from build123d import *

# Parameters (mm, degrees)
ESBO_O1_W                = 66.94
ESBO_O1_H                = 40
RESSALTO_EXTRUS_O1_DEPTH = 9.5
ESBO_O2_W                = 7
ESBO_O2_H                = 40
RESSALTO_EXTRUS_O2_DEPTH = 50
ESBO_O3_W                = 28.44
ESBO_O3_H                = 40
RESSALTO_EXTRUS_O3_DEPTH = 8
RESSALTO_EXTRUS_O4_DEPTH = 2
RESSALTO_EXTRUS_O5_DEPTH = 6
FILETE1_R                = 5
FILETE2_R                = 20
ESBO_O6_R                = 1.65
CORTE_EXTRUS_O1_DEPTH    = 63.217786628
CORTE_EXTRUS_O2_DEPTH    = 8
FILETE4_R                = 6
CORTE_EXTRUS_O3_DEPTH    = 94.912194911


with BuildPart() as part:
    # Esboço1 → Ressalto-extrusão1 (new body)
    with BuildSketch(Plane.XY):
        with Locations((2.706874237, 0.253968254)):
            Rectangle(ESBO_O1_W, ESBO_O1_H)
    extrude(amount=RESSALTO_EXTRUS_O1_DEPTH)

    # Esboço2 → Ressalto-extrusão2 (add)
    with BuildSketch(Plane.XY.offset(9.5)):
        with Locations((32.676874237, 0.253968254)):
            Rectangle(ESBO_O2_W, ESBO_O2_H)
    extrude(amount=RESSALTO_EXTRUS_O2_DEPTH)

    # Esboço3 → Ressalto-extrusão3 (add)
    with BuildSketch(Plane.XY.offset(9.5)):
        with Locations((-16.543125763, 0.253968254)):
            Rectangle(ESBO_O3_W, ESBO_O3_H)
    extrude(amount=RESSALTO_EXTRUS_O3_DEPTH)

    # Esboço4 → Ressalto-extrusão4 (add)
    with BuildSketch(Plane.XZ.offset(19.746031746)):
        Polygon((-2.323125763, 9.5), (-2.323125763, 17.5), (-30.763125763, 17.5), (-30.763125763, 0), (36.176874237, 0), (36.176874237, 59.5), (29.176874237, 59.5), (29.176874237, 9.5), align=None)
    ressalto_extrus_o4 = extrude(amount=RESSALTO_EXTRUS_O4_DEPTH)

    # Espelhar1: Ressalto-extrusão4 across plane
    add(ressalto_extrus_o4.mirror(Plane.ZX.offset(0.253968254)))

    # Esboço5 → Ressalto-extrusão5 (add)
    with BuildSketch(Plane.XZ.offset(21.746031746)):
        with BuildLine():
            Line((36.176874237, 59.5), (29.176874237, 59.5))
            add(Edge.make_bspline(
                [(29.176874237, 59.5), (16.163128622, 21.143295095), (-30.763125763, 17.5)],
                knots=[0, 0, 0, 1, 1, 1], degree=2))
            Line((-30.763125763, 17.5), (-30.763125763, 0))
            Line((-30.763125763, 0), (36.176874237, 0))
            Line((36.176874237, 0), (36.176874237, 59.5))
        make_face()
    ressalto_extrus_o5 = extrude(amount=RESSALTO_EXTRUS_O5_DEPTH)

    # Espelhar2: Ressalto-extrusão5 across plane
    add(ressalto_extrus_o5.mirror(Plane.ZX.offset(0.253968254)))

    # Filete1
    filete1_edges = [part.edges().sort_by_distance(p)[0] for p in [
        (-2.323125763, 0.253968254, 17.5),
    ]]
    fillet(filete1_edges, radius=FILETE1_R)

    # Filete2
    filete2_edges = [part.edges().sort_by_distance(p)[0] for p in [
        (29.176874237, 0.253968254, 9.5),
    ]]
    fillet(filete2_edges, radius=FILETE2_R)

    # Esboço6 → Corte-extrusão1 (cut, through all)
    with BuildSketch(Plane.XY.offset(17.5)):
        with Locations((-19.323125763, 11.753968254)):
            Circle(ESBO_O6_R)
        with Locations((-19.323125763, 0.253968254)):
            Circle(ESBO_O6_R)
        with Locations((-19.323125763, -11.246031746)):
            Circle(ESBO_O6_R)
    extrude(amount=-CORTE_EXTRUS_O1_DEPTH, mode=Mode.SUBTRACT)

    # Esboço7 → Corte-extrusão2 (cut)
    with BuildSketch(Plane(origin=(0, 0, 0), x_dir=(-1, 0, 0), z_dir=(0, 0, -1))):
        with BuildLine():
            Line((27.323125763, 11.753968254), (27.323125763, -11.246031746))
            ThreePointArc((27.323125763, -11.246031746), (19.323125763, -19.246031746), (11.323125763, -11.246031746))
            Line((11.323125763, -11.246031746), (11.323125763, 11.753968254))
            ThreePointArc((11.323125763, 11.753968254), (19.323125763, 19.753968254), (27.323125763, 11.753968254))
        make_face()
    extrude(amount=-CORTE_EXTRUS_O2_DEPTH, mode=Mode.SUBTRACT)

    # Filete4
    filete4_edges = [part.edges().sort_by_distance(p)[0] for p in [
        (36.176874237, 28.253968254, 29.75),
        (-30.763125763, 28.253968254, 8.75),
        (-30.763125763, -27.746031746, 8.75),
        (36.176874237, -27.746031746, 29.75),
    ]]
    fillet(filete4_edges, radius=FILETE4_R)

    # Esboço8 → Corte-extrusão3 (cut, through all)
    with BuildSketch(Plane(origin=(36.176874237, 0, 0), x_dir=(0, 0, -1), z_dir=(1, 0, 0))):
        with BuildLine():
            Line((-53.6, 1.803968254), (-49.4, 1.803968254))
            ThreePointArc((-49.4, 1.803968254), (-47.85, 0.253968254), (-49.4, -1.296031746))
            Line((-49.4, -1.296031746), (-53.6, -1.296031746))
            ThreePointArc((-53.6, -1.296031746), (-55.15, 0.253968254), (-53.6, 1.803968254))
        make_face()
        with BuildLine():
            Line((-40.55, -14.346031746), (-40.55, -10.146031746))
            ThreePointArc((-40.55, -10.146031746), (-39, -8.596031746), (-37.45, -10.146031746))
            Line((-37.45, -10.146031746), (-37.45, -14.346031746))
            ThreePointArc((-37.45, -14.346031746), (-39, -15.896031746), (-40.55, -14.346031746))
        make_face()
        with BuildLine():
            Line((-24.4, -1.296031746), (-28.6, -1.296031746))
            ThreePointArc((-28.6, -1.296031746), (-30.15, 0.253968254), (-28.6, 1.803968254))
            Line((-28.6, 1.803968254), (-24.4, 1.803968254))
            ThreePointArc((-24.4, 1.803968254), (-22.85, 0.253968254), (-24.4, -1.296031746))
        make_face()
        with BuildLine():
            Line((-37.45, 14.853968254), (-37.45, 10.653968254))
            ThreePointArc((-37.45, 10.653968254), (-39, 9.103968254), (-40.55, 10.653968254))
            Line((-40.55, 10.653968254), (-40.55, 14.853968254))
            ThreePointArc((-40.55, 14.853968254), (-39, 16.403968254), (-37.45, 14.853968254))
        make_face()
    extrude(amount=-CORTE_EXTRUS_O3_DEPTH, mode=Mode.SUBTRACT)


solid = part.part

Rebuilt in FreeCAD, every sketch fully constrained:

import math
import FreeCAD as App
import Part
import Sketcher

V = App.Vector


def edges_at(feature, points):
    """Names of the edges that pass closest to the given points."""
    edges = feature.Shape.Edges
    near = lambda p: min(range(len(edges)), key=lambda i: edges[i].distToShape(Part.Vertex(*p))[0])
    return sorted({f"Edge{near(p) + 1}" for p in points})


def add_polygon(sketch, points):
    """Adds a closed chain of lines whose ends are joined by coincident constraints."""
    first, n = sketch.GeometryCount, len(points)
    for a, b in zip(points, points[1:] + points[:1]):
        sketch.addGeometry(Part.LineSegment(App.Vector(*a, 0), App.Vector(*b, 0)), False)
    for i in range(n):
        sketch.addConstraint(Sketcher.Constraint("Coincident", first + i, 2, first + (i + 1) % n, 1))

doc = App.newDocument("Part")
body = doc.addObject("PartDesign::Body", "Body")

# Sketch on XY plane
sketch1 = body.newObject("Sketcher::SketchObject", "Sketch")
sketch1.AttachmentSupport = (doc.getObject("XY_Plane"), [""])
sketch1.MapMode = "FlatFace"
add_polygon(sketch1, [(-31, 20), (-31, -20), (36, -20), (36, 20)])  # lines 0-3
sketch1.addConstraint(Sketcher.Constraint("Vertical", 0))
sketch1.addConstraint(Sketcher.Constraint("Horizontal", 1))
sketch1.addConstraint(Sketcher.Constraint("Vertical", 2))
sketch1.addConstraint(Sketcher.Constraint("Horizontal", 3))
sketch1.addConstraint(Sketcher.Constraint("DistanceY", 0, 2, 0, 1, 40.0))
sketch1.addConstraint(Sketcher.Constraint("DistanceX", 1, 1, 1, 2, 66.94))
sketch1.addConstraint(Sketcher.Constraint("DistanceY", 0, 2, -1, 1, 19.746032))
sketch1.addConstraint(Sketcher.Constraint("DistanceX", 0, 2, -1, 1, 30.763126))
pad1 = body.newObject("PartDesign::Pad", "Pad")
pad1.Profile = sketch1
pad1.Length = 9.5

# Sketch on XY plane
sketch2 = body.newObject("Sketcher::SketchObject", "Sketch001")
sketch2.AttachmentSupport = (doc.getObject("XY_Plane"), [""])
sketch2.MapMode = "FlatFace"
sketch2.AttachmentOffset = App.Placement(V(0, 0, 9.5), App.Rotation())
add_polygon(sketch2, [(29, 20), (29, -20), (36, -20), (36, 20)])  # lines 0-3
sketch2.addConstraint(Sketcher.Constraint("Vertical", 0))
sketch2.addConstraint(Sketcher.Constraint("Horizontal", 1))
sketch2.addConstraint(Sketcher.Constraint("Vertical", 2))
sketch2.addConstraint(Sketcher.Constraint("Horizontal", 3))
sketch2.addConstraint(Sketcher.Constraint("DistanceX", 1, 1, 1, 2, 7.0))
sketch2.addConstraint(Sketcher.Constraint("DistanceY", 0, 2, 0, 1, 40.0))
sketch2.addConstraint(Sketcher.Constraint("DistanceY", 0, 2, -1, 1, 19.746032))
sketch2.addConstraint(Sketcher.Constraint("DistanceX", -1, 1, 0, 2, 29.176874))
pad2 = body.newObject("PartDesign::Pad", "Pad001")
pad2.Profile = sketch2
pad2.Length = 50

# Sketch on XY plane
sketch3 = body.newObject("Sketcher::SketchObject", "Sketch002")
sketch3.AttachmentSupport = (doc.getObject("XY_Plane"), [""])
sketch3.MapMode = "FlatFace"
sketch3.AttachmentOffset = App.Placement(V(0, 0, 9.5), App.Rotation())
add_polygon(sketch3, [(-31, 20), (-31, -20), (-2, -20), (-2, 20)])  # lines 0-3
sketch3.addConstraint(Sketcher.Constraint("Vertical", 0))
sketch3.addConstraint(Sketcher.Constraint("Horizontal", 1))
sketch3.addConstraint(Sketcher.Constraint("Vertical", 2))
sketch3.addConstraint(Sketcher.Constraint("Horizontal", 3))
sketch3.addConstraint(Sketcher.Constraint("DistanceY", 0, 2, 0, 1, 40.0))
sketch3.addConstraint(Sketcher.Constraint("DistanceX", 1, 1, 1, 2, 28.44))
sketch3.addConstraint(Sketcher.Constraint("DistanceY", 0, 2, -1, 1, 19.746032))
sketch3.addConstraint(Sketcher.Constraint("DistanceX", 0, 2, -1, 1, 30.763126))
pad3 = body.newObject("PartDesign::Pad", "Pad002")
pad3.Profile = sketch3
pad3.Length = 8

# Sketch on XZ plane
sketch4 = body.newObject("Sketcher::SketchObject", "Sketch003")
sketch4.AttachmentSupport = (doc.getObject("XZ_Plane"), [""])
sketch4.MapMode = "FlatFace"
sketch4.AttachmentOffset = App.Placement(V(0, 0, 19.746032), App.Rotation())
add_polygon(sketch4, [(-2, 10), (-2, 18), (-31, 18), (-31, 0), (36, 0), (36, 60), (29, 60), (29, 10)])  # lines 0-7
sketch4.addConstraint(Sketcher.Constraint("Vertical", 0))
sketch4.addConstraint(Sketcher.Constraint("Horizontal", 1))
sketch4.addConstraint(Sketcher.Constraint("Vertical", 2))
sketch4.addConstraint(Sketcher.Constraint("Horizontal", 3))
sketch4.addConstraint(Sketcher.Constraint("Vertical", 4))
sketch4.addConstraint(Sketcher.Constraint("Horizontal", 5))
sketch4.addConstraint(Sketcher.Constraint("Vertical", 6))
sketch4.addConstraint(Sketcher.Constraint("Horizontal", 7))
sketch4.addConstraint(Sketcher.Constraint("PointOnObject", 2, 2, -1))
sketch4.addConstraint(Sketcher.Constraint("DistanceX", 5, 2, 5, 1, 7.0))
sketch4.addConstraint(Sketcher.Constraint("DistanceY", 0, 1, 0, 2, 8.0))
sketch4.addConstraint(Sketcher.Constraint("DistanceY", 6, 2, 6, 1, 50.0))
sketch4.addConstraint(Sketcher.Constraint("DistanceX", 7, 2, 7, 1, 31.5))
sketch4.addConstraint(Sketcher.Constraint("DistanceY", 2, 2, 2, 1, 17.5))
sketch4.addConstraint(Sketcher.Constraint("DistanceX", 1, 2, 1, 1, 28.44))
sketch4.addConstraint(Sketcher.Constraint("DistanceX", 0, 2, -1, 1, 2.323126))
pad4 = body.newObject("PartDesign::Pad", "Pad003")
pad4.Profile = sketch4
pad4.Length = 2
doc.recompute()

datumplane = body.newObject("PartDesign::Plane", "DatumPlane")
datumplane.AttachmentSupport = (doc.getObject("XZ_Plane"), [""])
datumplane.MapMode = "FlatFace"
datumplane.AttachmentOffset = App.Placement(V(0, 0, -0.253968), App.Rotation())
mirrored = body.newObject("PartDesign::Mirrored", "Mirrored")
mirrored.Originals = [pad4]
mirrored.MirrorPlane = (datumplane, [""])
body.Tip = mirrored

# Sketch on XZ plane
sketch5 = body.newObject("Sketcher::SketchObject", "Sketch004")
sketch5.AttachmentSupport = (doc.getObject("XZ_Plane"), [""])
sketch5.MapMode = "FlatFace"
sketch5.AttachmentOffset = App.Placement(V(0, 0, 21.746032), App.Rotation())
sketch5.addGeometry(Part.LineSegment(V(36.176874, 59.5, 0), V(29.176874, 59.5, 0)), False)
sketch5.addGeometry(Part.BSplineCurve([V(29.176874, 59.5, 0), V(16.163129, 21.143295, 0), V(-30.763126, 17.5, 0)], [3, 3], [0, 1], False, 2, [1, 1, 1], False), False)
sketch5.addGeometry(Part.LineSegment(V(-30.763126, 17.5, 0), V(-30.763126, 0, 0)), False)
sketch5.addGeometry(Part.LineSegment(V(-30.763126, 0, 0), V(36.176874, 0, 0)), False)
sketch5.addGeometry(Part.LineSegment(V(36.176874, 0, 0), V(36.176874, 59.5, 0)), False)
sketch5.addConstraint(Sketcher.Constraint("Block", 1))
sketch5.addConstraint(Sketcher.Constraint("Coincident", 0, 2, 1, 1))
sketch5.addConstraint(Sketcher.Constraint("Coincident", 1, 2, 2, 1))
sketch5.addConstraint(Sketcher.Constraint("Coincident", 2, 2, 3, 1))
sketch5.addConstraint(Sketcher.Constraint("Coincident", 3, 2, 4, 1))
sketch5.addConstraint(Sketcher.Constraint("Coincident", 4, 2, 0, 1))
sketch5.addConstraint(Sketcher.Constraint("Horizontal", 0))
sketch5.addConstraint(Sketcher.Constraint("Vertical", 2))
sketch5.addConstraint(Sketcher.Constraint("Horizontal", 3))
sketch5.addConstraint(Sketcher.Constraint("Vertical", 4))
sketch5.addConstraint(Sketcher.Constraint("PointOnObject", 2, 2, -1))
sketch5.addConstraint(Sketcher.Constraint("DistanceX", 0, 2, 0, 1, 7.0))
pad5 = body.newObject("PartDesign::Pad", "Pad004")
pad5.Profile = sketch5
pad5.Length = 6
doc.recompute()

datumplane2 = body.newObject("PartDesign::Plane", "DatumPlane001")
datumplane2.AttachmentSupport = (doc.getObject("XZ_Plane"), [""])
datumplane2.MapMode = "FlatFace"
datumplane2.AttachmentOffset = App.Placement(V(0, 0, -0.253968), App.Rotation())
mirrored2 = body.newObject("PartDesign::Mirrored", "Mirrored001")
mirrored2.Originals = [pad5]
mirrored2.MirrorPlane = (datumplane2, [""])
body.Tip = mirrored2
doc.recompute()

fillet = body.newObject("PartDesign::Fillet", "Fillet")
fillet.Base = (mirrored2, edges_at(mirrored2, [(-2.323, 0.254, 17.5)]))
fillet.Radius = 5
doc.recompute()

fillet2 = body.newObject("PartDesign::Fillet", "Fillet001")
fillet2.Base = (fillet, edges_at(fillet, [(29.177, 0.254, 9.5)]))
fillet2.Radius = 20

# Sketch on XY plane
sketch6 = body.newObject("Sketcher::SketchObject", "Sketch005")
sketch6.AttachmentSupport = (doc.getObject("XY_Plane"), [""])
sketch6.MapMode = "FlatFace"
sketch6.AttachmentOffset = App.Placement(V(0, 0, 17.5), App.Rotation())
sketch6.addGeometry(Part.Circle(V(-19.3, 11.8, 0), V(0, 0, 1), 1.6), False)
sketch6.addGeometry(Part.Circle(V(-19.3, 0.3, 0), V(0, 0, 1), 1.6), False)
sketch6.addGeometry(Part.Circle(V(-19.3, -11.2, 0), V(0, 0, 1), 1.6), False)
sketch6.addConstraint(Sketcher.Constraint("Equal", 0, 1))
sketch6.addConstraint(Sketcher.Constraint("Equal", 1, 2))
sketch6.addConstraint(Sketcher.Constraint("Vertical", 0, 3, 1, 3))
sketch6.addConstraint(Sketcher.Constraint("Vertical", 1, 3, 2, 3))
sketch6.addConstraint(Sketcher.Constraint("Diameter", 0, 3.3))
sketch6.addConstraint(Sketcher.Constraint("DistanceY", 2, 3, 0, 3, 23.0))
sketch6.addConstraint(Sketcher.Constraint("DistanceY", 1, 3, 0, 3, 11.5))
sketch6.addConstraint(Sketcher.Constraint("DistanceY", -1, 1, 0, 3, 11.753968))
sketch6.addConstraint(Sketcher.Constraint("DistanceX", 0, 3, -1, 1, 19.323126))
pocket1 = body.newObject("PartDesign::Pocket", "Pocket")
pocket1.Profile = sketch6
pocket1.Type = "ThroughAll"

# Sketch on XY plane
sketch7 = body.newObject("Sketcher::SketchObject", "Sketch006")
sketch7.AttachmentSupport = (doc.getObject("XY_Plane"), [""])
sketch7.MapMode = "FlatFace"
sketch7.addGeometry(Part.LineSegment(V(-27, -11, 0), V(-27, 12, 0)), False)
sketch7.addGeometry(Part.ArcOfCircle(Part.Circle(V(-19, 12, 0), V(0, 0, 1), 8), math.radians(0), math.radians(180)), False)
sketch7.addGeometry(Part.LineSegment(V(-11, 12, 0), V(-11, -11, 0)), False)
sketch7.addGeometry(Part.ArcOfCircle(Part.Circle(V(-19, -11, 0), V(0, 0, 1), 8), math.radians(180), math.radians(360)), False)
sketch7.addConstraint(Sketcher.Constraint("Tangent", 0, 2, 1, 2))
sketch7.addConstraint(Sketcher.Constraint("Tangent", 1, 1, 2, 1))
sketch7.addConstraint(Sketcher.Constraint("Tangent", 2, 2, 3, 2))
sketch7.addConstraint(Sketcher.Constraint("Tangent", 3, 1, 0, 1))
sketch7.addConstraint(Sketcher.Constraint("Vertical", 0))
sketch7.addConstraint(Sketcher.Constraint("Vertical", 2))
sketch7.addConstraint(Sketcher.Constraint("Radius", 1, 8.0))
sketch7.addConstraint(Sketcher.Constraint("DistanceY", 0, 1, 0, 2, 23.0))
sketch7.addConstraint(Sketcher.Constraint("DistanceY", -1, 1, 1, 3, 11.753968))
sketch7.addConstraint(Sketcher.Constraint("DistanceX", 1, 3, -1, 1, 19.323126))
pocket2 = body.newObject("PartDesign::Pocket", "Pocket001")
pocket2.Profile = sketch7
pocket2.Length = 8
pocket2.Reversed = True
doc.recompute()

fillet3 = body.newObject("PartDesign::Fillet", "Fillet002")
fillet3.Base = (pocket2, edges_at(pocket2, [
    (36.177, 28.254, 29.75),
    (-30.763, 28.254, 8.75),
    (-30.763, -27.746, 8.75),
    (36.177, -27.746, 29.75),
]))
fillet3.Radius = 6

# Sketch on YZ plane
sketch8 = body.newObject("Sketcher::SketchObject", "Sketch007")
sketch8.AttachmentSupport = (doc.getObject("YZ_Plane"), [""])
sketch8.MapMode = "FlatFace"
sketch8.AttachmentOffset = App.Placement(V(0, 0, 36.176874), App.Rotation())
sketch8.addGeometry(Part.LineSegment(V(1.8, 49.4, 0), V(1.8, 53.6, 0)), False)
sketch8.addGeometry(Part.ArcOfCircle(Part.Circle(V(0.3, 53.6, 0), V(0, 0, 1), 1.6), math.radians(0), math.radians(180)), False)
sketch8.addGeometry(Part.LineSegment(V(-1.3, 53.6, 0), V(-1.3, 49.4, 0)), False)
sketch8.addGeometry(Part.ArcOfCircle(Part.Circle(V(0.3, 49.4, 0), V(0, 0, 1), 1.6), math.radians(180), math.radians(360)), False)
sketch8.addGeometry(Part.LineSegment(V(-10.1, 40.5, 0), V(-14.3, 40.5, 0)), False)
sketch8.addGeometry(Part.ArcOfCircle(Part.Circle(V(-14.3, 39, 0), V(0, 0, 1), 1.6), math.radians(90), math.radians(270)), False)
sketch8.addGeometry(Part.LineSegment(V(-14.3, 37.5, 0), V(-10.1, 37.5, 0)), False)
sketch8.addGeometry(Part.ArcOfCircle(Part.Circle(V(-10.1, 39, 0), V(0, 0, 1), 1.6), math.radians(-90), math.radians(90)), False)
sketch8.addGeometry(Part.LineSegment(V(-1.3, 28.6, 0), V(-1.3, 24.4, 0)), False)
sketch8.addGeometry(Part.ArcOfCircle(Part.Circle(V(0.3, 24.4, 0), V(0, 0, 1), 1.6), math.radians(180), math.radians(360)), False)
sketch8.addGeometry(Part.LineSegment(V(1.8, 24.4, 0), V(1.8, 28.6, 0)), False)
sketch8.addGeometry(Part.ArcOfCircle(Part.Circle(V(0.3, 28.6, 0), V(0, 0, 1), 1.6), math.radians(0), math.radians(180)), False)
sketch8.addGeometry(Part.LineSegment(V(10.7, 37.5, 0), V(14.9, 37.5, 0)), False)
sketch8.addGeometry(Part.ArcOfCircle(Part.Circle(V(14.9, 39, 0), V(0, 0, 1), 1.6), math.radians(-90), math.radians(90)), False)
sketch8.addGeometry(Part.LineSegment(V(14.9, 40.5, 0), V(10.7, 40.5, 0)), False)
sketch8.addGeometry(Part.ArcOfCircle(Part.Circle(V(10.7, 39, 0), V(0, 0, 1), 1.6), math.radians(90), math.radians(270)), False)
sketch8.addConstraint(Sketcher.Constraint("Tangent", 0, 2, 1, 1))
sketch8.addConstraint(Sketcher.Constraint("Tangent", 1, 2, 2, 1))
sketch8.addConstraint(Sketcher.Constraint("Tangent", 2, 2, 3, 1))
sketch8.addConstraint(Sketcher.Constraint("Tangent", 3, 2, 0, 1))
sketch8.addConstraint(Sketcher.Constraint("Tangent", 4, 2, 5, 1))
sketch8.addConstraint(Sketcher.Constraint("Tangent", 5, 2, 6, 1))
sketch8.addConstraint(Sketcher.Constraint("Tangent", 6, 2, 7, 1))
sketch8.addConstraint(Sketcher.Constraint("Tangent", 7, 2, 4, 1))
sketch8.addConstraint(Sketcher.Constraint("Tangent", 8, 2, 9, 1))
sketch8.addConstraint(Sketcher.Constraint("Tangent", 9, 2, 10, 1))
sketch8.addConstraint(Sketcher.Constraint("Tangent", 10, 2, 11, 1))
sketch8.addConstraint(Sketcher.Constraint("Tangent", 11, 2, 8, 1))
sketch8.addConstraint(Sketcher.Constraint("Tangent", 12, 2, 13, 1))
sketch8.addConstraint(Sketcher.Constraint("Tangent", 13, 2, 14, 1))
sketch8.addConstraint(Sketcher.Constraint("Tangent", 14, 2, 15, 1))
sketch8.addConstraint(Sketcher.Constraint("Tangent", 15, 2, 12, 1))
sketch8.addConstraint(Sketcher.Constraint("Vertical", 0))
sketch8.addConstraint(Sketcher.Constraint("Vertical", 2))
sketch8.addConstraint(Sketcher.Constraint("Horizontal", 4))
sketch8.addConstraint(Sketcher.Constraint("Horizontal", 6))
sketch8.addConstraint(Sketcher.Constraint("Vertical", 8))
sketch8.addConstraint(Sketcher.Constraint("Vertical", 10))
sketch8.addConstraint(Sketcher.Constraint("Horizontal", 12))
sketch8.addConstraint(Sketcher.Constraint("Horizontal", 14))
sketch8.addConstraint(Sketcher.Constraint("Equal", 3, 5))
sketch8.addConstraint(Sketcher.Constraint("Equal", 7, 9))
sketch8.addConstraint(Sketcher.Constraint("Equal", 11, 13))
sketch8.addConstraint(Sketcher.Constraint("Horizontal", 7, 3, 13, 3))
sketch8.addConstraint(Sketcher.Constraint("Vertical", 3, 3, 9, 3))
sketch8.addConstraint(Sketcher.Constraint("Equal", 6, 12))
sketch8.addConstraint(Sketcher.Constraint("Equal", 14, 0))
sketch8.addConstraint(Sketcher.Constraint("Equal", 2, 8))
sketch8.addConstraint(Sketcher.Constraint("Radius", 1, 1.55))
sketch8.addConstraint(Sketcher.Constraint("DistanceX", 4, 2, 4, 1, 4.2))
sketch8.addConstraint(Sketcher.Constraint("DistanceY", -1, 1, 5, 3, 39.0))
sketch8.addConstraint(Sketcher.Constraint("DistanceY", 9, 3, 3, 3, 25.0))
sketch8.addConstraint(Sketcher.Constraint("DistanceX", 7, 3, 13, 3, 25.0))
sketch8.addConstraint(Sketcher.Constraint("DistanceY", -1, 1, 1, 3, 53.6))
sketch8.addConstraint(Sketcher.Constraint("DistanceX", 5, 3, 3, 3, 14.6))
sketch8.addConstraint(Sketcher.Constraint("DistanceX", -1, 1, 1, 3, 0.253968))
pocket3 = body.newObject("PartDesign::Pocket", "Pocket002")
pocket3.Profile = sketch8
pocket3.Type = "ThroughAll"

doc.recompute()
